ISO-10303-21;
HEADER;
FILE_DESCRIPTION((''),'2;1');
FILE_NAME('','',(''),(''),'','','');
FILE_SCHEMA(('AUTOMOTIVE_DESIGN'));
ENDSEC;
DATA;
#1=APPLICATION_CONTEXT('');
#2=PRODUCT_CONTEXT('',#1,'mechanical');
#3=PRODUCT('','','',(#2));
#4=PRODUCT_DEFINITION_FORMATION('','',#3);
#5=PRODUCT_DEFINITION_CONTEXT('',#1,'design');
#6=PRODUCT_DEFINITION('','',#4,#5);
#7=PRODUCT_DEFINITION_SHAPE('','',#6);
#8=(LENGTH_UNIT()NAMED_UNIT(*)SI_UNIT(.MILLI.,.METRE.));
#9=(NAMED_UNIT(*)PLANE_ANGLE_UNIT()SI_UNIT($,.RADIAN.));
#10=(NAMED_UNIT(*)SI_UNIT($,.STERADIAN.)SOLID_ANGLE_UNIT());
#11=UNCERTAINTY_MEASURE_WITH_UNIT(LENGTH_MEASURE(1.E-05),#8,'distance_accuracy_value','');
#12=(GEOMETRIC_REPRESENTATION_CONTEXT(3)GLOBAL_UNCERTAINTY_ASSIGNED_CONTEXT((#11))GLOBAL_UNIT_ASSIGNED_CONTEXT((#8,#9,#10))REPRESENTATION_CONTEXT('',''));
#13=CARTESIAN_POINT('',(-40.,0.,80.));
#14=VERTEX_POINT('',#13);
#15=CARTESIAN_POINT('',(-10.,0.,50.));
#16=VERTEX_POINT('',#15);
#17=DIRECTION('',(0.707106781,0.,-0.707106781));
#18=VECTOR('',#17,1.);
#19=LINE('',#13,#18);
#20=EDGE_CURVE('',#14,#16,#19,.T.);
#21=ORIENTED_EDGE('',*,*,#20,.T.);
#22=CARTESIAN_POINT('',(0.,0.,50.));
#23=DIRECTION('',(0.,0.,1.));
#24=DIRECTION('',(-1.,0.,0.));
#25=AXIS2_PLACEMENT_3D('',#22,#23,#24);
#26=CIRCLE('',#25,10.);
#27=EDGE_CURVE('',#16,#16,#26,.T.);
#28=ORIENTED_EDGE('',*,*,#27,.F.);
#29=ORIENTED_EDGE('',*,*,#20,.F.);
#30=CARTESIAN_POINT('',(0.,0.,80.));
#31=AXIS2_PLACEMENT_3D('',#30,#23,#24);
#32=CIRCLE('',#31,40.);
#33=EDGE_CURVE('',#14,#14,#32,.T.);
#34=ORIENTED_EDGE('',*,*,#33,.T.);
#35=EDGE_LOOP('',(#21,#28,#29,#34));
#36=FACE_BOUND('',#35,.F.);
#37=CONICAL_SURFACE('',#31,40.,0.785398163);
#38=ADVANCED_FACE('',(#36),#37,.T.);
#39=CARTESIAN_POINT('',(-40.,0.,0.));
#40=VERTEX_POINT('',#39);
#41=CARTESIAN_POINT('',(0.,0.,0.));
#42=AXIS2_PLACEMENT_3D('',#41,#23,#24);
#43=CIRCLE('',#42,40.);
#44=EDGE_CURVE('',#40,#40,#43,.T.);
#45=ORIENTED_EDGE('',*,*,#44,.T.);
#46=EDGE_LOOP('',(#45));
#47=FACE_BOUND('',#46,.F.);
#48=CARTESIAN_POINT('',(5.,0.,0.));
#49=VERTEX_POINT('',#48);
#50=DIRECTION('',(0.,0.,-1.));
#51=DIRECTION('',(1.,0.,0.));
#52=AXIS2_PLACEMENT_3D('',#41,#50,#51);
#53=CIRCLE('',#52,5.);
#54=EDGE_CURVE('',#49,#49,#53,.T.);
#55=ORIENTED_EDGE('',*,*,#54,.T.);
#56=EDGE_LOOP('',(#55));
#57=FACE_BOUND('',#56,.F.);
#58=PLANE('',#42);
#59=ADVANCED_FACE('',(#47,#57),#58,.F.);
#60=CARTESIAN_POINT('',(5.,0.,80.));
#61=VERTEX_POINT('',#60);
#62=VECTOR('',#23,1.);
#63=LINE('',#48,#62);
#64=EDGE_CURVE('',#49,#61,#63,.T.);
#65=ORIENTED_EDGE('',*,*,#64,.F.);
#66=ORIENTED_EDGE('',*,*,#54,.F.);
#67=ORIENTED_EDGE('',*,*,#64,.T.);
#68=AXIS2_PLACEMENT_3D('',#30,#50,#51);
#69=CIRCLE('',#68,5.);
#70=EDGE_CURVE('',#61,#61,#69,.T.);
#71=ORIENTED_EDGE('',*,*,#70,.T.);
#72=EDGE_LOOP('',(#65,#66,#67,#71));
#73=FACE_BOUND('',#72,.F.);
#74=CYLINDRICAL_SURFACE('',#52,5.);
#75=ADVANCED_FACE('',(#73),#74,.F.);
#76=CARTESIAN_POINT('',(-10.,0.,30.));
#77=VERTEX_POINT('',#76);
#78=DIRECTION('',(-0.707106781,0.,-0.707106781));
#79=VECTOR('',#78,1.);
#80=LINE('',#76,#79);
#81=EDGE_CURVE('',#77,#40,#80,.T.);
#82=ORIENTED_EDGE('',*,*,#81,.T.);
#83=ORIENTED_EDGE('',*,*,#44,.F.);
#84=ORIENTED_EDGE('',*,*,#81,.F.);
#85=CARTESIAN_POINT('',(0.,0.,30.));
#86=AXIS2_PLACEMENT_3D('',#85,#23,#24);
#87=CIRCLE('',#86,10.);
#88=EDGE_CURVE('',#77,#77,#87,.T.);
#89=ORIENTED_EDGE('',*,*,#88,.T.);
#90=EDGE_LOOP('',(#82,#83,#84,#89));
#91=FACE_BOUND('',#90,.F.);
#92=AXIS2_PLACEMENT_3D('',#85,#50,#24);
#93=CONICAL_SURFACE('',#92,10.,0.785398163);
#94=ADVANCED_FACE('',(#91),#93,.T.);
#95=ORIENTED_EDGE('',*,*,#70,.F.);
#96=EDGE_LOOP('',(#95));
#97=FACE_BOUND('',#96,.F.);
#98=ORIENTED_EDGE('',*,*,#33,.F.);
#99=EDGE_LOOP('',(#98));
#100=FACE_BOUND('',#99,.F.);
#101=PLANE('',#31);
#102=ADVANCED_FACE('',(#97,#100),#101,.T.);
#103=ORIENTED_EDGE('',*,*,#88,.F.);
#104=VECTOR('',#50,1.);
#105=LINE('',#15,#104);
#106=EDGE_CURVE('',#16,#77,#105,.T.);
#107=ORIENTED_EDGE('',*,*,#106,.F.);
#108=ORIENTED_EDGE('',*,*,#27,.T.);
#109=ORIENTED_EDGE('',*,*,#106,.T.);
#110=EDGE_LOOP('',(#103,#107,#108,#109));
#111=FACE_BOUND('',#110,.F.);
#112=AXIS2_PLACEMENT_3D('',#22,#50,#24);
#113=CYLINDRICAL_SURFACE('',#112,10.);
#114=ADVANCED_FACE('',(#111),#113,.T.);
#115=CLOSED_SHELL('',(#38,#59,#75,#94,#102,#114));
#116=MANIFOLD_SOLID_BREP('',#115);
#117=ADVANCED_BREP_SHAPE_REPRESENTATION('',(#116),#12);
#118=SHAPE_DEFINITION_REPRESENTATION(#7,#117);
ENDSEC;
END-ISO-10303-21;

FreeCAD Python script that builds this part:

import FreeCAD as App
import Part
import Sketcher
from FreeCAD import Vector


def add_polygon(sketch, points):
    """Adds a closed chain of lines whose ends are joined by coincident constraints."""
    first, n = sketch.GeometryCount, len(points)
    for a, b in zip(points, points[1:] + points[:1]):
        sketch.addGeometry(Part.LineSegment(App.Vector(*a, 0), App.Vector(*b, 0)), False)
    for i in range(n):
        sketch.addConstraint(Sketcher.Constraint("Coincident", first + i, 2, first + (i + 1) % n, 1))

doc = App.newDocument("Part")
body = doc.addObject("PartDesign::Body", "Body")

# Sketch on XZ plane
sketch1 = body.newObject("Sketcher::SketchObject", "Sketch")
sketch1.AttachmentSupport = (doc.getObject("XZ_Plane"), [""])
sketch1.MapMode = "FlatFace"
add_polygon(sketch1, [(0, 0), (0, 80), (-40, 80), (-10, 50), (-10, 30), (-40, 0)])  # lines 0-5
sketch1.addConstraint(Sketcher.Constraint("Vertical", 0))
sketch1.addConstraint(Sketcher.Constraint("Horizontal", 1))
sketch1.addConstraint(Sketcher.Constraint("Vertical", 3))
sketch1.addConstraint(Sketcher.Constraint("Horizontal", 5))
sketch1.addConstraint(Sketcher.Constraint("Coincident", 5, 2, -1, 1))
sketch1.addConstraint(Sketcher.Constraint("Perpendicular", 2, 4))
sketch1.addConstraint(Sketcher.Constraint("Vertical", 1, 2, 4, 2))
sketch1.addConstraint(Sketcher.Constraint("Equal", 2, 4))
sketch1.addConstraint(Sketcher.Constraint("DistanceX", 1, 2, 1, 1, 40.0))
sketch1.addConstraint(Sketcher.Constraint("DistanceY", 0, 1, 0, 2, 80.0))
sketch1.addConstraint(Sketcher.Constraint("DistanceY", 3, 2, 3, 1, 20.0))
revolution = body.newObject("PartDesign::Revolution", "Revolution")
revolution.Profile = sketch1
revolution.ReferenceAxis = (sketch1, ["V_Axis"])
revolution.Angle = 360

# Sketch on XY plane
sketch2 = body.newObject("Sketcher::SketchObject", "Sketch001")
sketch2.AttachmentSupport = (doc.getObject("XY_Plane"), [""])
sketch2.MapMode = "FlatFace"
sketch2.addGeometry(Part.Circle(Vector(0, 0, 0), Vector(0, 0, 1), 5), False)
sketch2.addConstraint(Sketcher.Constraint("Coincident", 0, 3, -1, 1))
sketch2.addConstraint(Sketcher.Constraint("Diameter", 0, 10.0))
pocket1 = body.newObject("PartDesign::Pocket", "Pocket")
pocket1.Profile = sketch2
pocket1.Type = "ThroughAll"
pocket1.Reversed = True

doc.recompute()
